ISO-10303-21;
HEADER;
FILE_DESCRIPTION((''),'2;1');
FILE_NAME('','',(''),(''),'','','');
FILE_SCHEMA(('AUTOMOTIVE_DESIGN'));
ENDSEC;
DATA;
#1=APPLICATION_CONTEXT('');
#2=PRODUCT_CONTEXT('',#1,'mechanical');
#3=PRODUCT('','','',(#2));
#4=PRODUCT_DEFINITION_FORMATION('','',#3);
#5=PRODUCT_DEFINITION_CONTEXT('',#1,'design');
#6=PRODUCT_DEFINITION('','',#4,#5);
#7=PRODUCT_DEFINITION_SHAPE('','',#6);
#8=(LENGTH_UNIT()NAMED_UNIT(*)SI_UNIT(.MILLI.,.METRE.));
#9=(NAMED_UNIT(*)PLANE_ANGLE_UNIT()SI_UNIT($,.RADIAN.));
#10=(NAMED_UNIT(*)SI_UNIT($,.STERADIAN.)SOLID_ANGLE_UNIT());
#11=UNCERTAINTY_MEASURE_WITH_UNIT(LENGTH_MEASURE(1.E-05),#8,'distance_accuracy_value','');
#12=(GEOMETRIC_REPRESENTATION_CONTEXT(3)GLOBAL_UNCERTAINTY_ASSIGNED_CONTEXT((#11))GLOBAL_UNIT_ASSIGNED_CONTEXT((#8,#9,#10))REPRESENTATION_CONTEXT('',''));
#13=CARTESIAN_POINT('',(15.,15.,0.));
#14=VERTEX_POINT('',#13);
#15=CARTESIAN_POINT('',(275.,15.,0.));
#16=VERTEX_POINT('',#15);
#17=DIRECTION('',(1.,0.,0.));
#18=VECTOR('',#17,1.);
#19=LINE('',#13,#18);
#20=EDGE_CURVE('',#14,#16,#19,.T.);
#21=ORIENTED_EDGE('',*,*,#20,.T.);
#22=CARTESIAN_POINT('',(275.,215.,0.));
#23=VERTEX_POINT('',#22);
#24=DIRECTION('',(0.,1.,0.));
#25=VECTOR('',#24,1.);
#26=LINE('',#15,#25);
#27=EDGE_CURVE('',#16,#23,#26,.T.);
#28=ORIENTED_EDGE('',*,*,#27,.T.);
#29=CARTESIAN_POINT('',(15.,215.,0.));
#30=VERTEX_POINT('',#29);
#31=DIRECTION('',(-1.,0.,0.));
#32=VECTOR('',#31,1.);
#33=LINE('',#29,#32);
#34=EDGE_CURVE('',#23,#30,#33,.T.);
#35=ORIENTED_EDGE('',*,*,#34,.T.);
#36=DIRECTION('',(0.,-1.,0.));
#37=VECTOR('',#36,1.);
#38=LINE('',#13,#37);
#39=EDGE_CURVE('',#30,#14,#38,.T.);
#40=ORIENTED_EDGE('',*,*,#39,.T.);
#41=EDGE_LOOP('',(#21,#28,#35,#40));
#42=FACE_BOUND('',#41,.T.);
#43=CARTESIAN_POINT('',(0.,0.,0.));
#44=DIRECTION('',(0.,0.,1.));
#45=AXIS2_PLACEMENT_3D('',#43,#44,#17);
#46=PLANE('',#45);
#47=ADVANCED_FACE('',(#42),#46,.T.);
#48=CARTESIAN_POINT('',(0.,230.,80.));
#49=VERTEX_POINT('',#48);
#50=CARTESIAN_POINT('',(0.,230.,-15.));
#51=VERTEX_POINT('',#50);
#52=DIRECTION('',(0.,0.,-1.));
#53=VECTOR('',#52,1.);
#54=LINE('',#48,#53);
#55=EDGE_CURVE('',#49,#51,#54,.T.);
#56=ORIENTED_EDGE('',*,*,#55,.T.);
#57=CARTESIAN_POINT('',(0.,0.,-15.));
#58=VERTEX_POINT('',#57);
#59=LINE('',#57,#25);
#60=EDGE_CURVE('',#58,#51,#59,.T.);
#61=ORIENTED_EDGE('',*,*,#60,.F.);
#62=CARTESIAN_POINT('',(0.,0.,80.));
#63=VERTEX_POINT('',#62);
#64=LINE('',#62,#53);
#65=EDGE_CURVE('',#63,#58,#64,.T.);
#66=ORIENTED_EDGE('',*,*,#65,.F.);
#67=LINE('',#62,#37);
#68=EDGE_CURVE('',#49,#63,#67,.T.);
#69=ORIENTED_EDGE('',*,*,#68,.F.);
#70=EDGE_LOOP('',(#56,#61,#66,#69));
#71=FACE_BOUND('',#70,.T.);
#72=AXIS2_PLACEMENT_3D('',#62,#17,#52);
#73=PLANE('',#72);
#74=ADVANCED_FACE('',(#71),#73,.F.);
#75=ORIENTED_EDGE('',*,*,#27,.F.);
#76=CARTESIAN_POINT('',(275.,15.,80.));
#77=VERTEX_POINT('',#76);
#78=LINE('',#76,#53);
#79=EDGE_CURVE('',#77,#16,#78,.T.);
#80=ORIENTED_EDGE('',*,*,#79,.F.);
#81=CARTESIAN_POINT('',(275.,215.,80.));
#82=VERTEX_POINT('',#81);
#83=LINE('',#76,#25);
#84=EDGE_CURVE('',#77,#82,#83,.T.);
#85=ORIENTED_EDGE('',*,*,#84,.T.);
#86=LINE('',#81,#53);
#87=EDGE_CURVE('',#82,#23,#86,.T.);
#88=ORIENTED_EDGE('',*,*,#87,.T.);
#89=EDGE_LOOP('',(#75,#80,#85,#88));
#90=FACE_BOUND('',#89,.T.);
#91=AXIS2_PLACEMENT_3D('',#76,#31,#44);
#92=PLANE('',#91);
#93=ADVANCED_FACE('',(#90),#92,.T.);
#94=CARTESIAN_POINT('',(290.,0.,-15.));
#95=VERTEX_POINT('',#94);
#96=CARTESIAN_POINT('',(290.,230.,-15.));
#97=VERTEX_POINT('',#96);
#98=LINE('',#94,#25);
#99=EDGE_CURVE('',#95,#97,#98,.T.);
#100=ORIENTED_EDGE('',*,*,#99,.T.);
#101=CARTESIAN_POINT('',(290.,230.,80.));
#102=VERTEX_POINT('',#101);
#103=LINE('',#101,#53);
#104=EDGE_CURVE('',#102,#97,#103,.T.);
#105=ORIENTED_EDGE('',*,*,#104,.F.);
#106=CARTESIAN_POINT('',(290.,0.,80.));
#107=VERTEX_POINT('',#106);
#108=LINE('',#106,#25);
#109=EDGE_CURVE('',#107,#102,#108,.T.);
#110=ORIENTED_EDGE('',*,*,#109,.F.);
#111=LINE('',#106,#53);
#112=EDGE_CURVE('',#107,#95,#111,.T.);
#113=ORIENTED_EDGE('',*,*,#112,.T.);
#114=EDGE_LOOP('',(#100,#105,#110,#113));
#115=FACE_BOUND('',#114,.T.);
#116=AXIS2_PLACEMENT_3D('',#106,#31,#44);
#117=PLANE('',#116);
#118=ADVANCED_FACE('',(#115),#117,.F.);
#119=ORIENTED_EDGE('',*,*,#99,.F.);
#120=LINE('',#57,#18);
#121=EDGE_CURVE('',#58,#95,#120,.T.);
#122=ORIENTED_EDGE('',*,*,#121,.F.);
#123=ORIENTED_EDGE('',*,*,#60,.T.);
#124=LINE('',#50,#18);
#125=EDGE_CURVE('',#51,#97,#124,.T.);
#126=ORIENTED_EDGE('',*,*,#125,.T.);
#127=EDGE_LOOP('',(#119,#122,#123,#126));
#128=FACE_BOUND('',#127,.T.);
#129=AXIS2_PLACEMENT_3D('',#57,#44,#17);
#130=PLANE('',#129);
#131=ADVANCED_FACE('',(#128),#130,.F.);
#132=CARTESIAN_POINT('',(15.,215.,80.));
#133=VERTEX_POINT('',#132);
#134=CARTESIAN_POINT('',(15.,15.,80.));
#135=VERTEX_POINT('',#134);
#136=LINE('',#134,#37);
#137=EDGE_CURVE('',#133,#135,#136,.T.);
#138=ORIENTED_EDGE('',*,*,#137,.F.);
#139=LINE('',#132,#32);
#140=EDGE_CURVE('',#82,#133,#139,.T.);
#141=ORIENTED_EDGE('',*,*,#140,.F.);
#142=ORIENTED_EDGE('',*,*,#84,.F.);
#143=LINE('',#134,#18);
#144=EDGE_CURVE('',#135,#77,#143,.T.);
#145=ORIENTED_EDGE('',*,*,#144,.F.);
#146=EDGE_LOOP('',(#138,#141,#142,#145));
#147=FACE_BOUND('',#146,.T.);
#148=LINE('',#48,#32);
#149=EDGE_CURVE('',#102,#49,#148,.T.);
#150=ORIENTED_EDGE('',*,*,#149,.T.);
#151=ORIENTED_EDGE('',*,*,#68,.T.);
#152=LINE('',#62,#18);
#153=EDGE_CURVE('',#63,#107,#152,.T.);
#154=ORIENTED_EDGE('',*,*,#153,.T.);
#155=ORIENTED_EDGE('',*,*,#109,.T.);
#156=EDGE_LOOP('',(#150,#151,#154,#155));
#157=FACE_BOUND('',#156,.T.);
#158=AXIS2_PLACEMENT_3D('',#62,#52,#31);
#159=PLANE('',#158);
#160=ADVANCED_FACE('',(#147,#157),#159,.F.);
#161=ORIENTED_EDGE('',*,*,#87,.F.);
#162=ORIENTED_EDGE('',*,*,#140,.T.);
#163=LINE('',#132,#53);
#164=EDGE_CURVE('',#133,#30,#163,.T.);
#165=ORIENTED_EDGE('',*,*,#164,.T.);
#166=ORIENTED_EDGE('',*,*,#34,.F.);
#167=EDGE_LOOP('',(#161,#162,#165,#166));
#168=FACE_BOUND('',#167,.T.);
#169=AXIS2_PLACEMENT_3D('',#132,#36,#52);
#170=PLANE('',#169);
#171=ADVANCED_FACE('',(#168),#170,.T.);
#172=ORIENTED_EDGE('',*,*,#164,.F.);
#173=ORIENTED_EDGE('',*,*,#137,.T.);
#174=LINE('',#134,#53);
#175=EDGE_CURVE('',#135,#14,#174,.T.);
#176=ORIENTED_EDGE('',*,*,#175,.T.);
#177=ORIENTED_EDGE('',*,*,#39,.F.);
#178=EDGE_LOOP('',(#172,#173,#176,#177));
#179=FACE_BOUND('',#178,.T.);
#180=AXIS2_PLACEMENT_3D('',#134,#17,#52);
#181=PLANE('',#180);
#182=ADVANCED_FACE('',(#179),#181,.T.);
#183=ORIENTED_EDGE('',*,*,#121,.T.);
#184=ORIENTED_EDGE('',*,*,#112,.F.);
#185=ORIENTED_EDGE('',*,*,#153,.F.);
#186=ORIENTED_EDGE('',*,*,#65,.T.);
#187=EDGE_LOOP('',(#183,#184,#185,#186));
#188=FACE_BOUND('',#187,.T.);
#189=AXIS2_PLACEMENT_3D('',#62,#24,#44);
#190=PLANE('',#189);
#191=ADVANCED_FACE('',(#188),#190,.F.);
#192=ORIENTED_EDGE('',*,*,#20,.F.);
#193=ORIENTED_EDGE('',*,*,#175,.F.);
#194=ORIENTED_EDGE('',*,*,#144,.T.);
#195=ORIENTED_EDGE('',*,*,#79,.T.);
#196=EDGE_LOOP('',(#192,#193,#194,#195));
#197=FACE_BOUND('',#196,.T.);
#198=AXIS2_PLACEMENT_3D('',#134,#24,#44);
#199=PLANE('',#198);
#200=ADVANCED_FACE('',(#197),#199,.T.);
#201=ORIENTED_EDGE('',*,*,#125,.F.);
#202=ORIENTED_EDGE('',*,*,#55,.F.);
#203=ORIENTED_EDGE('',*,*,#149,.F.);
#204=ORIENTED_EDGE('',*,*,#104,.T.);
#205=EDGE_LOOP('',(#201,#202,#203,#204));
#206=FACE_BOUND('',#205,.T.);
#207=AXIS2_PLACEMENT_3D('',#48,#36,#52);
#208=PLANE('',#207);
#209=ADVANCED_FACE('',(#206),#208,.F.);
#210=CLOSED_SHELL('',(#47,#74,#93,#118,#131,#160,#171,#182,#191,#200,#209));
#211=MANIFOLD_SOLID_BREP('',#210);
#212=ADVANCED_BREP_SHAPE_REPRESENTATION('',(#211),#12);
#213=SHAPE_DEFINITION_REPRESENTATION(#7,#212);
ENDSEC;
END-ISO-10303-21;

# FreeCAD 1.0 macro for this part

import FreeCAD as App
import Part
import Sketcher
Q = App.Units.Quantity


def add_polygon(sketch, points):
    """Adds a closed chain of lines whose ends are joined by coincident constraints."""
    first, n = sketch.GeometryCount, len(points)
    for a, b in zip(points, points[1:] + points[:1]):
        sketch.addGeometry(Part.LineSegment(App.Vector(*a, 0), App.Vector(*b, 0)), False)
    for i in range(n):
        sketch.addConstraint(Sketcher.Constraint("Coincident", first + i, 2, first + (i + 1) % n, 1))

doc = App.newDocument("Part")
body = doc.addObject("PartDesign::Body", "Body")

# Sketch on XY plane
sketch1 = body.newObject("Sketcher::SketchObject", "Sketch")
sketch1.AttachmentSupport = (doc.getObject("XY_Plane"), [""])
sketch1.MapMode = "FlatFace"
add_polygon(sketch1, [(0, 230), (0, 0), (290, 0), (290, 230)])  # lines 0-3
add_polygon(sketch1, [(275, 15), (15, 15), (15, 215), (275, 215)])  # lines 4-7
sketch1.addConstraint([
    Sketcher.Constraint("Vertical", 0),
    Sketcher.Constraint("Horizontal", 1),
    Sketcher.Constraint("Vertical", 2),
    Sketcher.Constraint("Horizontal", 3),
    Sketcher.Constraint("Horizontal", 4),
    Sketcher.Constraint("Vertical", 5),
    Sketcher.Constraint("Horizontal", 6),
    Sketcher.Constraint("Vertical", 7),
    Sketcher.Constraint("Coincident", 0, 2, -1, 1),
    Sketcher.Constraint("DistanceX", 1, 1, 1, 2, Q("290 mm")),
    Sketcher.Constraint("DistanceX", 4, 2, 4, 1, Q("260 mm")),
    Sketcher.Constraint("DistanceY", 0, 2, 0, 1, Q("230 mm")),
    Sketcher.Constraint("DistanceY", 5, 1, 5, 2, Q("200 mm")),
    Sketcher.Constraint("DistanceX", -1, 1, 4, 2, Q("15 mm")),
    Sketcher.Constraint("DistanceY", -1, 1, 4, 2, Q("15 mm")),
])
pad1 = body.newObject("PartDesign::Pad", "Pad")
pad1.Profile = sketch1
pad1.Length = 80

# Sketch on XY plane
sketch2 = body.newObject("Sketcher::SketchObject", "Sketch001")
sketch2.AttachmentSupport = (doc.getObject("XY_Plane"), [""])
sketch2.MapMode = "FlatFace"
add_polygon(sketch2, [(0, 230), (0, 0), (290, 0), (290, 230)])  # lines 0-3
sketch2.addConstraint([
    Sketcher.Constraint("Vertical", 0),
    Sketcher.Constraint("Horizontal", 1),
    Sketcher.Constraint("Vertical", 2),
    Sketcher.Constraint("Horizontal", 3),
    Sketcher.Constraint("Coincident", 0, 2, -1, 1),
    Sketcher.Constraint("DistanceX", 1, 1, 1, 2, Q("290 mm")),
    Sketcher.Constraint("DistanceY", 0, 2, 0, 1, Q("230 mm")),
])
pad2 = body.newObject("PartDesign::Pad", "Pad001")
pad2.Profile = sketch2
pad2.Length = 15
pad2.Reversed = True

doc.recompute()
